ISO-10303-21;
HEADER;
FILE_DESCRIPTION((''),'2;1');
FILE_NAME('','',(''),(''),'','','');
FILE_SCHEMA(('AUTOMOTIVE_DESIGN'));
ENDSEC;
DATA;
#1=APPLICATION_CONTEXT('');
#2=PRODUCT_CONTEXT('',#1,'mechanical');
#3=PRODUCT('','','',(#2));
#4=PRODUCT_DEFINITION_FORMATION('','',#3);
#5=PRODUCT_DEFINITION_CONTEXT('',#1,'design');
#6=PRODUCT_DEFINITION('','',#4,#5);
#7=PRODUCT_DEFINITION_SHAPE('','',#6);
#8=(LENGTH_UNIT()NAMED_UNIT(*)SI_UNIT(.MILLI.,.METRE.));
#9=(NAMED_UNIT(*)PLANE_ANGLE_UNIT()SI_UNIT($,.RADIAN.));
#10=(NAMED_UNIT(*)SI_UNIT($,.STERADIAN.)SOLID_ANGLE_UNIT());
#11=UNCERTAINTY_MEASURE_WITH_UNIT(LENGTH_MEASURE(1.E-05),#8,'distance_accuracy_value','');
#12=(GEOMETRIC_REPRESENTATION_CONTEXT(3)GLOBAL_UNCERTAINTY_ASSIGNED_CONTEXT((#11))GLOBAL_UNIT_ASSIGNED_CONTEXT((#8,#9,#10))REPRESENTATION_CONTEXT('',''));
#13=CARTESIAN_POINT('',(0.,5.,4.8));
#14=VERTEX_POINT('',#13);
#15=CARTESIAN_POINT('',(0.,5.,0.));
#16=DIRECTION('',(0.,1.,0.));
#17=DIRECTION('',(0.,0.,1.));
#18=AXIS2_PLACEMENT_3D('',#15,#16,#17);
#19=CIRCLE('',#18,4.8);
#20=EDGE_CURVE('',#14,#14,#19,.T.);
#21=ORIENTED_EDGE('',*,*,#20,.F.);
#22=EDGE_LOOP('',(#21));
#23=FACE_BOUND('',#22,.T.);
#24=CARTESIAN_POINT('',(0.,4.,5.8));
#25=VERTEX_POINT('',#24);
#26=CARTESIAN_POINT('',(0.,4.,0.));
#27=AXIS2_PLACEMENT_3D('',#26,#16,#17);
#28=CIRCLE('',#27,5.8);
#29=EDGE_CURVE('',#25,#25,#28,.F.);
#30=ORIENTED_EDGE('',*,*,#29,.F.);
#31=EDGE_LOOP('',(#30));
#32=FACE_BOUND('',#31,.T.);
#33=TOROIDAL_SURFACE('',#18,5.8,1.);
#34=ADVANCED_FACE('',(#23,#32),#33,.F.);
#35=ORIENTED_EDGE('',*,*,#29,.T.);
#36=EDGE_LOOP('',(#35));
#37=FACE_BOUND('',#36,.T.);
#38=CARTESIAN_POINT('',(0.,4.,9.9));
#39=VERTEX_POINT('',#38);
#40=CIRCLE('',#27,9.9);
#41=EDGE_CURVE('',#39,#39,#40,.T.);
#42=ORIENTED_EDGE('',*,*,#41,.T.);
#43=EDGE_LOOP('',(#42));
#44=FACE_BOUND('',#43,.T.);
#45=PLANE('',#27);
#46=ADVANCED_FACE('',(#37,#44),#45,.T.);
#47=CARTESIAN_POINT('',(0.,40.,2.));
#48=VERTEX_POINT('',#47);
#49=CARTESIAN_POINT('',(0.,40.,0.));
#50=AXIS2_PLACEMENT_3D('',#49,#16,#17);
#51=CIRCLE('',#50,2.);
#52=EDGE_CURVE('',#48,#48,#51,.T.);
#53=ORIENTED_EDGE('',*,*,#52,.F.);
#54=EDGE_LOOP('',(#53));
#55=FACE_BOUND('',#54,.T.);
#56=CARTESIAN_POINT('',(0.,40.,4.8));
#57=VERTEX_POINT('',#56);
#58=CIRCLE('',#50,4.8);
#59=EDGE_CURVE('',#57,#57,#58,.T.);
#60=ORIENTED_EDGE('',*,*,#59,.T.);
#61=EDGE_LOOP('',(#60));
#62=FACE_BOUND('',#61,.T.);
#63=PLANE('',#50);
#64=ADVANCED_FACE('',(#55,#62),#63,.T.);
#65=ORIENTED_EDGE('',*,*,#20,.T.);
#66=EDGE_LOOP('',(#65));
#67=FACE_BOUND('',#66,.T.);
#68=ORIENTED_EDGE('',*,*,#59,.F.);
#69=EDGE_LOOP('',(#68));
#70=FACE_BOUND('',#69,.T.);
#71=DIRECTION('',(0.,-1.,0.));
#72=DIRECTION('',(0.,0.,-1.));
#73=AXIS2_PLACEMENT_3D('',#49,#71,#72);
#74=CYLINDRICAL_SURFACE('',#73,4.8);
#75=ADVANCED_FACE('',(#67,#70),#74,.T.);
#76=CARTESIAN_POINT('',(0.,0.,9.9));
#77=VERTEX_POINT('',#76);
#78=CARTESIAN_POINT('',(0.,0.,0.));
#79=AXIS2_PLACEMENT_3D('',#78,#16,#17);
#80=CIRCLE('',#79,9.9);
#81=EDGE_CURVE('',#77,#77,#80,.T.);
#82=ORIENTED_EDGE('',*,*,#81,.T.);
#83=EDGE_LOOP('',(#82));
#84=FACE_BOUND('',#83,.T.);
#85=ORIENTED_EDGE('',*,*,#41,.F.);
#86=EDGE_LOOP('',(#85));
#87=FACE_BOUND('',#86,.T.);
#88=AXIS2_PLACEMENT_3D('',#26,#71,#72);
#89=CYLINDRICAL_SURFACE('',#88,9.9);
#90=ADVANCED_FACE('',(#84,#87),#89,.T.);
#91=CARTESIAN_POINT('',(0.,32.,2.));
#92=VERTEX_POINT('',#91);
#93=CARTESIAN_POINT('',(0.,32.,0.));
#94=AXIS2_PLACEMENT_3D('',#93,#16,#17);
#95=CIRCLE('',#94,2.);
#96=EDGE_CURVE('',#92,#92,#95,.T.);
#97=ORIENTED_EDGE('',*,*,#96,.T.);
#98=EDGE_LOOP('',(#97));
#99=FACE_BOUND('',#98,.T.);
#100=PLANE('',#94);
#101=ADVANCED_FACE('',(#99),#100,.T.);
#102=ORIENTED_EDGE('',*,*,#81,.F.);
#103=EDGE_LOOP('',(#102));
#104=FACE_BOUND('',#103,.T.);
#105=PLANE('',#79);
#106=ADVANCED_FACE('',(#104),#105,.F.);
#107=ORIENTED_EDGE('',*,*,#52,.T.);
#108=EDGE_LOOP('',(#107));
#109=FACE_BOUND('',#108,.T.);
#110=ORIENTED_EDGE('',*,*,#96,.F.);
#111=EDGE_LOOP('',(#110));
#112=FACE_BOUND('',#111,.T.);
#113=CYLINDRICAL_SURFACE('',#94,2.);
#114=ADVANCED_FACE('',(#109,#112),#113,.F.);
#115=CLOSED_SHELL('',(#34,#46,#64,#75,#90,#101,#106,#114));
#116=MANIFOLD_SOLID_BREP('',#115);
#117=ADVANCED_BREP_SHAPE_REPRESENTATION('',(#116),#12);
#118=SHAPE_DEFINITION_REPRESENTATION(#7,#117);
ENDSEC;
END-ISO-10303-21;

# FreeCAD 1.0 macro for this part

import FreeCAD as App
import Part
import Sketcher
Q = App.Units.Quantity


def edges_at(feature, points):
    """Names of the edges that pass closest to the given points."""
    edges = feature.Shape.Edges
    near = lambda p: min(range(len(edges)), key=lambda i: edges[i].distToShape(Part.Vertex(*p))[0])
    return sorted({f"Edge{near(p) + 1}" for p in points})

doc = App.newDocument("Part")
params = doc.addObject("Spreadsheet::Sheet", "Params")
for row, (alias, value) in enumerate([
    ("sketch1_diameter", "19.8 mm"),
    ("pad1_length", "4 mm"),
    ("sketch2_diameter", "9.6 mm"),
    ("pad2_length", "36 mm"),
    ("sketch3_diameter", "4 mm"),
    ("pocket1_length", "8 mm"),
    ("fillet_radius", "1 mm"),
], start=1):
    params.set(f"A{row}", alias)
    params.set(f"B{row}", "=" + value)
    params.setAlias(f"B{row}", alias)

body = doc.addObject("PartDesign::Body", "Body")

# Sketch on XZ plane
sketch1 = body.newObject("Sketcher::SketchObject", "Sketch")
sketch1.AttachmentSupport = (doc.getObject("XZ_Plane"), [""])
sketch1.MapMode = "FlatFace"
sketch1.addGeometry(Part.Circle(App.Vector(0, 0, 0), App.Vector(0, 0, 1), 10), False)
sketch1.addConstraint(Sketcher.Constraint("Coincident", 0, 3, -1, 1))
sketch1.addConstraint(Sketcher.Constraint("Diameter", 0, Q("19.8 mm")))
sketch1.setExpression("Constraints[1]", "Params.sketch1_diameter")
pad1 = body.newObject("PartDesign::Pad", "Pad")
pad1.Profile = sketch1
pad1.setExpression("Length", "Params.pad1_length")
pad1.Reversed = True

# Sketch on XZ plane
sketch2 = body.newObject("Sketcher::SketchObject", "Sketch001")
sketch2.AttachmentSupport = (doc.getObject("XZ_Plane"), [""])
sketch2.MapMode = "FlatFace"
sketch2.AttachmentOffset = App.Placement(App.Vector(0, 0, -4), App.Rotation())
sketch2.addGeometry(Part.Circle(App.Vector(0, 0, 0), App.Vector(0, 0, 1), 4.8), False)
sketch2.addConstraint(Sketcher.Constraint("Coincident", 0, 3, -1, 1))
sketch2.addConstraint(Sketcher.Constraint("Diameter", 0, Q("9.6 mm")))
sketch2.setExpression("Constraints[1]", "Params.sketch2_diameter")
pad2 = body.newObject("PartDesign::Pad", "Pad001")
pad2.Profile = sketch2
pad2.setExpression("Length", "Params.pad2_length")
pad2.Reversed = True

# Sketch on XZ plane
sketch3 = body.newObject("Sketcher::SketchObject", "Sketch002")
sketch3.AttachmentSupport = (doc.getObject("XZ_Plane"), [""])
sketch3.MapMode = "FlatFace"
sketch3.AttachmentOffset = App.Placement(App.Vector(0, 0, -40), App.Rotation())
sketch3.addGeometry(Part.Circle(App.Vector(0, 0, 0), App.Vector(0, 0, 1), 2), False)
sketch3.addConstraint(Sketcher.Constraint("Coincident", 0, 3, -1, 1))
sketch3.addConstraint(Sketcher.Constraint("Diameter", 0, Q("4 mm")))
sketch3.setExpression("Constraints[1]", "Params.sketch3_diameter")
pocket1 = body.newObject("PartDesign::Pocket", "Pocket")
pocket1.Profile = sketch3
pocket1.setExpression("Length", "Params.pocket1_length")
pocket1.Reversed = True
doc.recompute()

fillet = body.newObject("PartDesign::Fillet", "Fillet")
fillet.Base = (pocket1, edges_at(pocket1, [(0, 4, -4.8)]))
fillet.setExpression("Radius", "Params.fillet_radius")

doc.recompute()
